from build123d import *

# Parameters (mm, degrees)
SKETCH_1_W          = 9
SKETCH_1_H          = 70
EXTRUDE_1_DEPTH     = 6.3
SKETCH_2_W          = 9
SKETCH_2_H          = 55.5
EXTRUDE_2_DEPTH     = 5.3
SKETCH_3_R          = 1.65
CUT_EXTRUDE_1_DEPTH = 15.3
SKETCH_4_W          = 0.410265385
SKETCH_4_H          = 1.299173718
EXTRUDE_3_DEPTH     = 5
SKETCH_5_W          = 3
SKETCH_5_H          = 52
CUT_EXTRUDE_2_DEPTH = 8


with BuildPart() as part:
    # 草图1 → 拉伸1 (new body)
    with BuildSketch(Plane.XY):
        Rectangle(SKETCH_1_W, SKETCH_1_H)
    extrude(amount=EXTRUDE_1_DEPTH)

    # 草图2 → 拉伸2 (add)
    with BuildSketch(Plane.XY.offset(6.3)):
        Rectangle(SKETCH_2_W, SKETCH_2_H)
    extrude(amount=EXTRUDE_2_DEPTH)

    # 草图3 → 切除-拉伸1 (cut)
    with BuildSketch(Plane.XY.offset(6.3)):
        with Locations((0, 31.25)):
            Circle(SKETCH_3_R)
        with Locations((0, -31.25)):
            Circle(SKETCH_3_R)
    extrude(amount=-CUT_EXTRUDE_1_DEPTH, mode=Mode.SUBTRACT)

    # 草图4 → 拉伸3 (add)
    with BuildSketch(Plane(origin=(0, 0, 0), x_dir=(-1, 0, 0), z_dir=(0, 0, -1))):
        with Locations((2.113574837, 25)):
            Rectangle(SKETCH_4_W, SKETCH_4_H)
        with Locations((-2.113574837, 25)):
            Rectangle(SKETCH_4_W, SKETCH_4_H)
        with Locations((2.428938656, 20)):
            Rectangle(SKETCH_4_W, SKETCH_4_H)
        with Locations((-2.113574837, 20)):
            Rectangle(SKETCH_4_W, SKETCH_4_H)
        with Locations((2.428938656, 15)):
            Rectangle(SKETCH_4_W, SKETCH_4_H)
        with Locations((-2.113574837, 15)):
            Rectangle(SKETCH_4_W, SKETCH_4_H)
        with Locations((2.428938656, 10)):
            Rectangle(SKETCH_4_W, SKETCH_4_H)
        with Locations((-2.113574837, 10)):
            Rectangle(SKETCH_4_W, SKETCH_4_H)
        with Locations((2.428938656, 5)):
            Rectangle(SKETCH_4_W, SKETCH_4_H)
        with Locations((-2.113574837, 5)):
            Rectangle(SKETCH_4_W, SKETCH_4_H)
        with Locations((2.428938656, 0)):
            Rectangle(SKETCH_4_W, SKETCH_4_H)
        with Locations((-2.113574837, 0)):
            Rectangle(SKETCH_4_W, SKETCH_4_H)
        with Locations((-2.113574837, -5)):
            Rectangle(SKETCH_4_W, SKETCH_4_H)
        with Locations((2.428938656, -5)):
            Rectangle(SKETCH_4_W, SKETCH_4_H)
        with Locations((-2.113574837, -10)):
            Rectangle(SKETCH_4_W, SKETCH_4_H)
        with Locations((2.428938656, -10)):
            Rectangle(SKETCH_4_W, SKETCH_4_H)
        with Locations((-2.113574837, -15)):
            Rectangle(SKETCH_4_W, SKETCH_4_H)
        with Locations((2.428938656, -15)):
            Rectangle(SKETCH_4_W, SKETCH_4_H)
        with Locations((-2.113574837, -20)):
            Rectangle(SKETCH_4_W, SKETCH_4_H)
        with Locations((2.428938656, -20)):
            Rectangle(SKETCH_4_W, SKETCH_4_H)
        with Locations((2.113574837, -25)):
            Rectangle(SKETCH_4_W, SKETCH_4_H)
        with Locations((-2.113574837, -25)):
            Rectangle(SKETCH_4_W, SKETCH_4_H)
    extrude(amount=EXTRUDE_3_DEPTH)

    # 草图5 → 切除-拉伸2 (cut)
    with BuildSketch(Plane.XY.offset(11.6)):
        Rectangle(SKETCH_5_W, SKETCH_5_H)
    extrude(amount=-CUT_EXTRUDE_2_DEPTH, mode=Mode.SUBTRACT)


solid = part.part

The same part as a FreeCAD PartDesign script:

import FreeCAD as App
import Part
import Sketcher
Q = App.Units.Quantity


def add_polygon(sketch, points):
    """Adds a closed chain of lines whose ends are joined by coincident constraints."""
    first, n = sketch.GeometryCount, len(points)
    for a, b in zip(points, points[1:] + points[:1]):
        sketch.addGeometry(Part.LineSegment(App.Vector(*a, 0), App.Vector(*b, 0)), False)
    for i in range(n):
        sketch.addConstraint(Sketcher.Constraint("Coincident", first + i, 2, first + (i + 1) % n, 1))

doc = App.newDocument("Part")
params = doc.addObject("Spreadsheet::Sheet", "Params")
for row, (alias, value) in enumerate([
    ("sketch1_width", "9 mm"),
    ("sketch1_height", "70 mm"),
    ("pad1_length", "6.3 mm"),
    ("sketch2_width", "9 mm"),
    ("sketch2_height", "55.5 mm"),
    ("pad2_length", "5.3 mm"),
    ("sketch3_diameter", "3.3 mm"),
    ("pocket1_length", "15.3 mm"),
    ("pad3_length", "5 mm"),
    ("sketch5_width", "3 mm"),
    ("sketch5_height", "52 mm"),
    ("pocket2_length", "8 mm"),
], start=1):
    params.set(f"A{row}", alias)
    params.set(f"B{row}", "=" + value)
    params.setAlias(f"B{row}", alias)

body = doc.addObject("PartDesign::Body", "Body")

sketch1 = body.newObject("Sketcher::SketchObject", "Sketch")
sketch1.AttachmentSupport = (doc.getObject("XY_Plane"), [""])
sketch1.MapMode = "FlatFace"
add_polygon(sketch1, [(-4, 35), (-4, -35), (4, -35), (4, 35)])
sketch1.addConstraint([
    Sketcher.Constraint("Vertical", 0),
    Sketcher.Constraint("Horizontal", 1),
    Sketcher.Constraint("Vertical", 2),
    Sketcher.Constraint("Horizontal", 3),
    Sketcher.Constraint("Symmetric", 0, 2, 2, 2, -1, 1),
    Sketcher.Constraint("DistanceX", 1, 1, 1, 2, Q("9 mm")),
    Sketcher.Constraint("DistanceY", 0, 2, 0, 1, Q("70 mm")),
])
sketch1.setExpression("Constraints[9]", "Params.sketch1_width")
sketch1.setExpression("Constraints[10]", "Params.sketch1_height")
pad1 = body.newObject("PartDesign::Pad", "Pad")
pad1.Profile = sketch1
pad1.setExpression("Length", "Params.pad1_length")

sketch2 = body.newObject("Sketcher::SketchObject", "Sketch001")
sketch2.AttachmentSupport = (doc.getObject("XY_Plane"), [""])
sketch2.MapMode = "FlatFace"
sketch2.AttachmentOffset = App.Placement(App.Vector(0, 0, 6.3), App.Rotation())
add_polygon(sketch2, [(-4, 28), (-4, -28), (4, -28), (4, 28)])
sketch2.addConstraint([
    Sketcher.Constraint("Vertical", 0),
    Sketcher.Constraint("Horizontal", 1),
    Sketcher.Constraint("Vertical", 2),
    Sketcher.Constraint("Horizontal", 3),
    Sketcher.Constraint("Symmetric", 0, 2, 2, 2, -1, 1),
    Sketcher.Constraint("DistanceX", 1, 1, 1, 2, Q("9 mm")),
    Sketcher.Constraint("DistanceY", 0, 2, 0, 1, Q("55.5 mm")),
])
sketch2.setExpression("Constraints[9]", "Params.sketch2_width")
sketch2.setExpression("Constraints[10]", "Params.sketch2_height")
pad2 = body.newObject("PartDesign::Pad", "Pad001")
pad2.Profile = sketch2
pad2.setExpression("Length", "Params.pad2_length")

sketch3 = body.newObject("Sketcher::SketchObject", "Sketch002")
sketch3.AttachmentSupport = (doc.getObject("XY_Plane"), [""])
sketch3.MapMode = "FlatFace"
sketch3.AttachmentOffset = App.Placement(App.Vector(0, 0, 6.3), App.Rotation())
sketch3.addGeometry([
    Part.Circle(App.Vector(0, 31.2, 0), App.Vector(0, 0, 1), 1.6),
    Part.Circle(App.Vector(0, -31.2, 0), App.Vector(0, 0, 1), 1.6),
], False)
sketch3.addConstraint([
    Sketcher.Constraint("Equal", 0, 1),
    Sketcher.Constraint("Symmetric", 0, 3, 1, 3, -1, 1),
    Sketcher.Constraint("PointOnObject", 0, 3, -2),
    Sketcher.Constraint("Diameter", 0, Q("3.3 mm")),
    Sketcher.Constraint("DistanceY", 1, 3, 0, 3, Q("62.5 mm")),
])
sketch3.setExpression("Constraints[3]", "Params.sketch3_diameter")
pocket1 = body.newObject("PartDesign::Pocket", "Pocket")
pocket1.Profile = sketch3
pocket1.setExpression("Length", "Params.pocket1_length")

sketch4 = body.newObject("Sketcher::SketchObject", "Sketch003")
sketch4.AttachmentSupport = (doc.getObject("XY_Plane"), [""])
sketch4.MapMode = "FlatFace"
add_polygon(sketch4, [(-1.91, 25.65), (-1.91, 24.35), (-2.32, 24.35), (-2.32, 25.65)])
add_polygon(sketch4, [(2.32, 25.65), (2.32, 24.35), (1.91, 24.35), (1.91, 25.65)])
add_polygon(sketch4, [(-2.22, 20.65), (-2.22, 19.35), (-2.63, 19.35), (-2.63, 20.65)])
add_polygon(sketch4, [(2.32, 20.65), (2.32, 19.35), (1.91, 19.35), (1.91, 20.65)])
add_polygon(sketch4, [(-2.22, 15.65), (-2.22, 14.35), (-2.63, 14.35), (-2.63, 15.65)])
add_polygon(sketch4, [(2.32, 15.65), (2.32, 14.35), (1.91, 14.35), (1.91, 15.65)])
add_polygon(sketch4, [(-2.22, 10.65), (-2.22, 9.35), (-2.63, 9.35), (-2.63, 10.65)])
add_polygon(sketch4, [(2.32, 10.65), (2.32, 9.35), (1.91, 9.35), (1.91, 10.65)])
add_polygon(sketch4, [(-2.22, 5.65), (-2.22, 4.35), (-2.63, 4.35), (-2.63, 5.65)])
add_polygon(sketch4, [(2.32, 5.65), (2.32, 4.35), (1.91, 4.35), (1.91, 5.65)])
add_polygon(sketch4, [(-2.22, 0.65), (-2.22, -0.65), (-2.63, -0.65), (-2.63, 0.65)])
add_polygon(sketch4, [(2.32, 0.65), (2.32, -0.65), (1.91, -0.65), (1.91, 0.65)])
add_polygon(sketch4, [(2.32, -4.35), (2.32, -5.65), (1.91, -5.65), (1.91, -4.35)])
add_polygon(sketch4, [(-2.22, -4.35), (-2.22, -5.65), (-2.63, -5.65), (-2.63, -4.35)])
add_polygon(sketch4, [(2.32, -9.35), (2.32, -10.65), (1.91, -10.65), (1.91, -9.35)])
add_polygon(sketch4, [(-2.22, -9.35), (-2.22, -10.65), (-2.63, -10.65), (-2.63, -9.35)])
add_polygon(sketch4, [(2.32, -14.35), (2.32, -15.65), (1.91, -15.65), (1.91, -14.35)])
add_polygon(sketch4, [(-2.22, -14.35), (-2.22, -15.65), (-2.63, -15.65), (-2.63, -14.35)])
add_polygon(sketch4, [(2.32, -19.35), (2.32, -20.65), (1.91, -20.65), (1.91, -19.35)])
add_polygon(sketch4, [(-2.22, -19.35), (-2.22, -20.65), (-2.63, -20.65), (-2.63, -19.35)])
add_polygon(sketch4, [(-1.91, -24.35), (-1.91, -25.65), (-2.32, -25.65), (-2.32, -24.35)])
add_polygon(sketch4, [(2.32, -24.35), (2.32, -25.65), (1.91, -25.65), (1.91, -24.35)])
sketch4.addConstraint([
    Sketcher.Constraint("Vertical", 0),
    Sketcher.Constraint("Horizontal", 1),
    Sketcher.Constraint("Vertical", 2),
    Sketcher.Constraint("Horizontal", 3),
    Sketcher.Constraint("Vertical", 4),
    Sketcher.Constraint("Horizontal", 5),
    Sketcher.Constraint("Vertical", 6),
    Sketcher.Constraint("Horizontal", 7),
    Sketcher.Constraint("Vertical", 8),
    Sketcher.Constraint("Horizontal", 9),
    Sketcher.Constraint("Vertical", 10),
    Sketcher.Constraint("Horizontal", 11),
    Sketcher.Constraint("Vertical", 12),
    Sketcher.Constraint("Horizontal", 13),
    Sketcher.Constraint("Vertical", 14),
    Sketcher.Constraint("Horizontal", 15),
    Sketcher.Constraint("Vertical", 16),
    Sketcher.Constraint("Horizontal", 17),
    Sketcher.Constraint("Vertical", 18),
    Sketcher.Constraint("Horizontal", 19),
    Sketcher.Constraint("Vertical", 20),
    Sketcher.Constraint("Horizontal", 21),
    Sketcher.Constraint("Vertical", 22),
    Sketcher.Constraint("Horizontal", 23),
    Sketcher.Constraint("Vertical", 24),
    Sketcher.Constraint("Horizontal", 25),
    Sketcher.Constraint("Vertical", 26),
    Sketcher.Constraint("Horizontal", 27),
    Sketcher.Constraint("Vertical", 28),
    Sketcher.Constraint("Horizontal", 29),
    Sketcher.Constraint("Vertical", 30),
    Sketcher.Constraint("Horizontal", 31),
    Sketcher.Constraint("Vertical", 32),
    Sketcher.Constraint("Horizontal", 33),
    Sketcher.Constraint("Vertical", 34),
    Sketcher.Constraint("Horizontal", 35),
    Sketcher.Constraint("Vertical", 36),
    Sketcher.Constraint("Horizontal", 37),
    Sketcher.Constraint("Vertical", 38),
    Sketcher.Constraint("Horizontal", 39),
    Sketcher.Constraint("Vertical", 40),
    Sketcher.Constraint("Horizontal", 41),
    Sketcher.Constraint("Vertical", 42),
    Sketcher.Constraint("Horizontal", 43),
    Sketcher.Constraint("Vertical", 44),
    Sketcher.Constraint("Horizontal", 45),
    Sketcher.Constraint("Vertical", 46),
    Sketcher.Constraint("Horizontal", 47),
    Sketcher.Constraint("Vertical", 48),
    Sketcher.Constraint("Horizontal", 49),
    Sketcher.Constraint("Vertical", 50),
    Sketcher.Constraint("Horizontal", 51),
    Sketcher.Constraint("Vertical", 52),
    Sketcher.Constraint("Horizontal", 53),
    Sketcher.Constraint("Vertical", 54),
    Sketcher.Constraint("Horizontal", 55),
    Sketcher.Constraint("Vertical", 56),
    Sketcher.Constraint("Horizontal", 57),
    Sketcher.Constraint("Vertical", 58),
    Sketcher.Constraint("Horizontal", 59),
    Sketcher.Constraint("Vertical", 60),
    Sketcher.Constraint("Horizontal", 61),
    Sketcher.Constraint("Vertical", 62),
    Sketcher.Constraint("Horizontal", 63),
    Sketcher.Constraint("Vertical", 64),
    Sketcher.Constraint("Horizontal", 65),
    Sketcher.Constraint("Vertical", 66),
    Sketcher.Constraint("Horizontal", 67),
    Sketcher.Constraint("Vertical", 68),
    Sketcher.Constraint("Horizontal", 69),
    Sketcher.Constraint("Vertical", 70),
    Sketcher.Constraint("Horizontal", 71),
    Sketcher.Constraint("Vertical", 72),
    Sketcher.Constraint("Horizontal", 73),
    Sketcher.Constraint("Vertical", 74),
    Sketcher.Constraint("Horizontal", 75),
    Sketcher.Constraint("Vertical", 76),
    Sketcher.Constraint("Horizontal", 77),
    Sketcher.Constraint("Vertical", 78),
    Sketcher.Constraint("Horizontal", 79),
    Sketcher.Constraint("Vertical", 80),
    Sketcher.Constraint("Horizontal", 81),
    Sketcher.Constraint("Vertical", 82),
    Sketcher.Constraint("Horizontal", 83),
    Sketcher.Constraint("Vertical", 84),
    Sketcher.Constraint("Horizontal", 85),
    Sketcher.Constraint("Vertical", 86),
    Sketcher.Constraint("Horizontal", 87),
    Sketcher.Constraint("Symmetric", 6, 2, 80, 2, -1, 1),
    Sketcher.Constraint("Symmetric", 4, 2, 82, 2, -1, 1),
    Sketcher.Constraint("Symmetric", 2, 2, 84, 2, -1, 1),
    Sketcher.Constraint("Symmetric", 0, 2, 86, 2, -1, 1),
    Sketcher.Constraint("Symmetric", 1, 2, 4, 2, -2),
    Sketcher.Constraint("Symmetric", 3, 2, 6, 2, -2),
    Sketcher.Constraint("Symmetric", 39, 2, 48, 2, -1),
    Sketcher.Constraint("Symmetric", 37, 2, 50, 2, -1),
    Sketcher.Constraint("Symmetric", 35, 2, 52, 2, -1),
    Sketcher.Constraint("Symmetric", 33, 2, 54, 2, -1),
    Sketcher.Constraint("Symmetric", 31, 2, 56, 2, -1),
    Sketcher.Constraint("Symmetric", 29, 2, 58, 2, -1),
    Sketcher.Constraint("Symmetric", 27, 2, 60, 2, -1),
    Sketcher.Constraint("Symmetric", 25, 2, 62, 2, -1),
    Sketcher.Constraint("Symmetric", 23, 2, 64, 2, -1),
    Sketcher.Constraint("Symmetric", 21, 2, 66, 2, -1),
    Sketcher.Constraint("Symmetric", 19, 2, 68, 2, -1),
    Sketcher.Constraint("Symmetric", 17, 2, 70, 2, -1),
    Sketcher.Constraint("Symmetric", 15, 2, 72, 2, -1),
    Sketcher.Constraint("Symmetric", 13, 2, 74, 2, -1),
    Sketcher.Constraint("Symmetric", 11, 2, 76, 2, -1),
    Sketcher.Constraint("Symmetric", 9, 2, 78, 2, -1),
    Sketcher.Constraint("Horizontal", 9, 2, 12, 2),
    Sketcher.Constraint("Horizontal", 11, 2, 14, 2),
    Sketcher.Constraint("Horizontal", 17, 2, 20, 2),
    Sketcher.Constraint("Horizontal", 19, 2, 22, 2),
    Sketcher.Constraint("Horizontal", 25, 2, 28, 2),
    Sketcher.Constraint("Horizontal", 27, 2, 30, 2),
    Sketcher.Constraint("Horizontal", 33, 2, 36, 2),
    Sketcher.Constraint("Horizontal", 35, 2, 38, 2),
    Sketcher.Constraint("Horizontal", 41, 2, 44, 2),
    Sketcher.Constraint("Horizontal", 43, 2, 46, 2),
    Sketcher.Constraint("Vertical", 7, 2, 12, 2),
    Sketcher.Constraint("Vertical", 6, 2, 13, 2),
    Sketcher.Constraint("Vertical", 11, 2, 16, 2),
    Sketcher.Constraint("Vertical", 10, 2, 17, 2),
    Sketcher.Constraint("Vertical", 15, 2, 20, 2),
    Sketcher.Constraint("Vertical", 14, 2, 21, 2),
    Sketcher.Constraint("Vertical", 19, 2, 24, 2),
    Sketcher.Constraint("Vertical", 18, 2, 25, 2),
    Sketcher.Constraint("Vertical", 23, 2, 28, 2),
    Sketcher.Constraint("Vertical", 22, 2, 29, 2),
    Sketcher.Constraint("Vertical", 27, 2, 32, 2),
    Sketcher.Constraint("Vertical", 26, 2, 33, 2),
    Sketcher.Constraint("Vertical", 31, 2, 36, 2),
    Sketcher.Constraint("Vertical", 30, 2, 37, 2),
    Sketcher.Constraint("Vertical", 35, 2, 40, 2),
    Sketcher.Constraint("Vertical", 34, 2, 41, 2),
    Sketcher.Constraint("Vertical", 39, 2, 44, 2),
    Sketcher.Constraint("Vertical", 38, 2, 45, 2),
    Sketcher.Constraint("Equal", 7, 9),
    Sketcher.Constraint("Equal", 6, 8),
    Sketcher.Constraint("Equal", 14, 16),
    Sketcher.Constraint("Equal", 22, 24),
    Sketcher.Constraint("Equal", 30, 32),
    Sketcher.Constraint("Equal", 38, 40),
    Sketcher.Constraint("DistanceX", 1, 2, 1, 1, Q("0.410265 mm")),
    Sketcher.Constraint("DistanceY", 0, 2, 0, 1, Q("1.299174 mm")),
    Sketcher.Constraint("DistanceX", 9, 2, -1, 1, Q("2.634071 mm")),
    Sketcher.Constraint("DistanceX", 0, 2, -1, 1, Q("1.908442 mm")),
    Sketcher.Constraint("DistanceY", -1, 1, 0, 2, Q("24.350413 mm")),
    Sketcher.Constraint("DistanceY", -1, 1, 8, 2, Q("19.350413 mm")),
    Sketcher.Constraint("DistanceY", -1, 1, 16, 2, Q("14.350413 mm")),
    Sketcher.Constraint("DistanceY", -1, 1, 24, 2, Q("9.350413 mm")),
    Sketcher.Constraint("DistanceY", -1, 1, 32, 2, Q("4.350413 mm")),
    Sketcher.Constraint("DistanceY", 40, 2, -1, 1, Q("0.649587 mm")),
])
pad3 = body.newObject("PartDesign::Pad", "Pad002")
pad3.Profile = sketch4
pad3.setExpression("Length", "Params.pad3_length")
pad3.Reversed = True

sketch5 = body.newObject("Sketcher::SketchObject", "Sketch004")
sketch5.AttachmentSupport = (doc.getObject("XY_Plane"), [""])
sketch5.MapMode = "FlatFace"
sketch5.AttachmentOffset = App.Placement(App.Vector(0, 0, 11.6), App.Rotation())
add_polygon(sketch5, [(-1.5, 26), (-1.5, -26), (1.5, -26), (1.5, 26)])
sketch5.addConstraint([
    Sketcher.Constraint("Vertical", 0),
    Sketcher.Constraint("Horizontal", 1),
    Sketcher.Constraint("Vertical", 2),
    Sketcher.Constraint("Horizontal", 3),
    Sketcher.Constraint("Symmetric", 0, 2, 2, 2, -1, 1),
    Sketcher.Constraint("DistanceX", 1, 1, 1, 2, Q("3 mm")),
    Sketcher.Constraint("DistanceY", 0, 2, 0, 1, Q("52 mm")),
])
sketch5.setExpression("Constraints[9]", "Params.sketch5_width")
sketch5.setExpression("Constraints[10]", "Params.sketch5_height")
pocket2 = body.newObject("PartDesign::Pocket", "Pocket001")
pocket2.Profile = sketch5
pocket2.setExpression("Length", "Params.pocket2_length")

doc.recompute()
